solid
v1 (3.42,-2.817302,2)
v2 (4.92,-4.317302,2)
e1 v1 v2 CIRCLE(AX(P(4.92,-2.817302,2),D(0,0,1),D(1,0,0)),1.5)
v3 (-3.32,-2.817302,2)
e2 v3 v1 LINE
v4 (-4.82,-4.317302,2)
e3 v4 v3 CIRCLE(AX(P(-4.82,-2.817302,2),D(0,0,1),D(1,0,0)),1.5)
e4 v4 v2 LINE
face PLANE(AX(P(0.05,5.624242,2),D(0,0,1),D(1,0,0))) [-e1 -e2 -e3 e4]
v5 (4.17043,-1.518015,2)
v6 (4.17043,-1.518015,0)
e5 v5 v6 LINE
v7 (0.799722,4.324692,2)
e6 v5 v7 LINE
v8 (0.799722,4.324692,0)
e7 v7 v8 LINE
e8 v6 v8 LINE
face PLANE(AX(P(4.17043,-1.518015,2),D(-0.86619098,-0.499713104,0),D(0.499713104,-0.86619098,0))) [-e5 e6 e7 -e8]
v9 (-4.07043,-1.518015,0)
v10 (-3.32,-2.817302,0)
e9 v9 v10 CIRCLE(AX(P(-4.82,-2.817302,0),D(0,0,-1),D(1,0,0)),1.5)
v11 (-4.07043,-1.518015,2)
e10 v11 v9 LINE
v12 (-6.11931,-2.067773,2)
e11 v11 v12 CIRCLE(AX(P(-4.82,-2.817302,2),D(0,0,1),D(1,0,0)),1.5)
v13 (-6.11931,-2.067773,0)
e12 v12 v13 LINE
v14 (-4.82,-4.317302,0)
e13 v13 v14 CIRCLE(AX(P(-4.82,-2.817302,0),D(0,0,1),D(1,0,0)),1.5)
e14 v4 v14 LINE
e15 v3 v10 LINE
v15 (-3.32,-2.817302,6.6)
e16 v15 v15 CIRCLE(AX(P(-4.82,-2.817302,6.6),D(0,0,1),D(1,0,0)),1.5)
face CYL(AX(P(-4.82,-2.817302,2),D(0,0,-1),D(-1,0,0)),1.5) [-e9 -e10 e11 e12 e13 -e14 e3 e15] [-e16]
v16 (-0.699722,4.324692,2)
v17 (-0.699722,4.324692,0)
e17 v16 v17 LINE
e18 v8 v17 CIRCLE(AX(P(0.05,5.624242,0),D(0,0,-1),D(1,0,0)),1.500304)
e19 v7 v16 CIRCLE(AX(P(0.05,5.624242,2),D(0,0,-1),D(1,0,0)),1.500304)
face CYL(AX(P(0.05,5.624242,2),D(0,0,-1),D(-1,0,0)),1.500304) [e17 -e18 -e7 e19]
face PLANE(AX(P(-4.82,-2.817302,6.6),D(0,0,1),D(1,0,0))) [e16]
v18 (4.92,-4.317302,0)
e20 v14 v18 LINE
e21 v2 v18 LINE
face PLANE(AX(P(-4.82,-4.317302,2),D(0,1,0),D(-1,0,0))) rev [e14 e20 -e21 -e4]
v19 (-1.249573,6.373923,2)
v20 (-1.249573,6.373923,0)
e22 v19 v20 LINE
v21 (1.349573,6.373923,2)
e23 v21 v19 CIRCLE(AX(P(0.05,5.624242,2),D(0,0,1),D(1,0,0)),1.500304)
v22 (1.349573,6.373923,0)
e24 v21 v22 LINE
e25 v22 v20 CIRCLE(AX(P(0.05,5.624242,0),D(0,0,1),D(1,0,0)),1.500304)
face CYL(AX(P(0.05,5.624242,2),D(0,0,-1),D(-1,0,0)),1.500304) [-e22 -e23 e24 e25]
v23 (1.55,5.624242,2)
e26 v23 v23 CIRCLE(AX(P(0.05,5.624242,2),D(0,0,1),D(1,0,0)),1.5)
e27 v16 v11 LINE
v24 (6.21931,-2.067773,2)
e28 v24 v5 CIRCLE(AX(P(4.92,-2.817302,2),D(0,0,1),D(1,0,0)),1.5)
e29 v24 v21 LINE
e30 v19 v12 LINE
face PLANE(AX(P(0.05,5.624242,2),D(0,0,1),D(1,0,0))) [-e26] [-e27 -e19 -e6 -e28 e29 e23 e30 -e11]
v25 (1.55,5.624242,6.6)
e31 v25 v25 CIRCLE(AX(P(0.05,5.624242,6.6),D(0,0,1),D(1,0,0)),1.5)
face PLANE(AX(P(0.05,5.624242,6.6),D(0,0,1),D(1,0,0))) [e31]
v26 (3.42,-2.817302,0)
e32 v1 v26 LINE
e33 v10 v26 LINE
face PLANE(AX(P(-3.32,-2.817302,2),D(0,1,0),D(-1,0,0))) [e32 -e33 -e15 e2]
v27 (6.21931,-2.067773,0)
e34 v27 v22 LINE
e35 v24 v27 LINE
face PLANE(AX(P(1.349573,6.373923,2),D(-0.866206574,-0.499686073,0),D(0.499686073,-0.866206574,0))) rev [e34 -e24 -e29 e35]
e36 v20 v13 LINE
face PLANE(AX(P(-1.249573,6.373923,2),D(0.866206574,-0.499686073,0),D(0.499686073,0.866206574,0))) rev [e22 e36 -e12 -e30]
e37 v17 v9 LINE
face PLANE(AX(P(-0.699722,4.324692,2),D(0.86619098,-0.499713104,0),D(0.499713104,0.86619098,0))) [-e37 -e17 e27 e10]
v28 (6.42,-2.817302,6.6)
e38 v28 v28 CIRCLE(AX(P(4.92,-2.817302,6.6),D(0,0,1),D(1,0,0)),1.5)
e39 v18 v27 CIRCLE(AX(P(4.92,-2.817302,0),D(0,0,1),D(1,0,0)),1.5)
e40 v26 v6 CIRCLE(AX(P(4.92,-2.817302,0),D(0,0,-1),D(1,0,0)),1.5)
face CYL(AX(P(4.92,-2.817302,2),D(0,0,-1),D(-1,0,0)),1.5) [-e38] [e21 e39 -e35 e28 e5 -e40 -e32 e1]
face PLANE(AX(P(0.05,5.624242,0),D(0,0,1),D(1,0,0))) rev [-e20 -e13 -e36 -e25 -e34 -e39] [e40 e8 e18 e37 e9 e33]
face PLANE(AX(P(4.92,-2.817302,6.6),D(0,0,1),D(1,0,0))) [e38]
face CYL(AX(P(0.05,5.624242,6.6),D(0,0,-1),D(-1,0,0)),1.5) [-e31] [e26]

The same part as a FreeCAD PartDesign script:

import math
import FreeCAD as App
import Part
import Sketcher

V = App.Vector

doc = App.newDocument("Part")
body = doc.addObject("PartDesign::Body", "Body")

# Sketch on XY plane
sketch1 = body.newObject("Sketcher::SketchObject", "Sketch")
sketch1.AttachmentSupport = (doc.getObject("XY_Plane"), [""])
sketch1.MapMode = "FlatFace"
sketch1.addGeometry([
    Part.LineSegment(V(-1.2, 6.4, 0), V(-6.1, -2.1, 0)),  # 0
    Part.ArcOfCircle(Part.Circle(V(-4.8, -2.8, 0), V(0, 0, 1), 1.5), math.radians(150), math.radians(270)),  # 1
    Part.LineSegment(V(-4.8, -4.3, 0), V(4.9, -4.3, 0)),  # 2
    Part.ArcOfCircle(Part.Circle(V(4.9, -2.8, 0), V(0, 0, 1), 1.5), math.radians(-90), math.radians(30)),  # 3
    Part.LineSegment(V(6.2, -2.1, 0), V(1.3, 6.4, 0)),  # 4
    Part.ArcOfCircle(Part.Circle(V(0.1, 5.6, 0), V(0, 0, 1), 1.5), math.radians(30), math.radians(150)),  # 5
    Part.LineSegment(V(-4.1, -1.5, 0), V(-0.7, 4.3, 0)),  # 6
    Part.ArcOfCircle(Part.Circle(V(0.1, 5.6, 0), V(0, 0, 1), 1.5), math.radians(-120), math.radians(-60)),  # 7
    Part.LineSegment(V(0.8, 4.3, 0), V(4.2, -1.5, 0)),  # 8
    Part.ArcOfCircle(Part.Circle(V(4.9, -2.8, 0), V(0, 0, 1), 1.5), math.radians(120), math.radians(180)),  # 9
    Part.LineSegment(V(3.4, -2.8, 0), V(-3.3, -2.8, 0)),  # 10
    Part.ArcOfCircle(Part.Circle(V(-4.8, -2.8, 0), V(0, 0, 1), 1.5), math.radians(0), math.radians(60)),  # 11
], False)
sketch1.addConstraint([
    Sketcher.Constraint("Tangent", 0, 2, 1, 1),
    Sketcher.Constraint("Tangent", 1, 2, 2, 1),
    Sketcher.Constraint("Tangent", 2, 2, 3, 1),
    Sketcher.Constraint("Tangent", 3, 2, 4, 1),
    Sketcher.Constraint("Tangent", 4, 2, 5, 1),
    Sketcher.Constraint("Tangent", 5, 2, 0, 1),
    Sketcher.Constraint("Coincident", 6, 2, 7, 1),
    Sketcher.Constraint("Coincident", 7, 2, 8, 1),
    Sketcher.Constraint("Coincident", 8, 2, 9, 1),
    Sketcher.Constraint("Coincident", 9, 2, 10, 1),
    Sketcher.Constraint("Coincident", 10, 2, 11, 1),
    Sketcher.Constraint("Coincident", 11, 2, 6, 1),
    Sketcher.Constraint("Horizontal", 2),
    Sketcher.Constraint("Horizontal", 10),
    Sketcher.Constraint("Coincident", 7, 3, 5, 3),
    Sketcher.Constraint("Coincident", 9, 3, 3, 3),
    Sketcher.Constraint("Coincident", 11, 3, 1, 3),
    Sketcher.Constraint("Equal", 1, 3),
    Sketcher.Constraint("Equal", 5, 7),
    Sketcher.Constraint("Equal", 3, 9),
    Sketcher.Constraint("Equal", 9, 11),
    Sketcher.Constraint("Horizontal", 0, 2, 3, 2),
    Sketcher.Constraint("Horizontal", 6, 2, 7, 2),
    Sketcher.Constraint("Horizontal", 11, 3, 9, 2),
    Sketcher.Constraint("Horizontal", 8, 2, 11, 2),
    Sketcher.Constraint("Radius", 1, 1.5),
    Sketcher.Constraint("DistanceX", 2, 1, 2, 2, 9.74),
    Sketcher.Constraint("DistanceX", 1, 3, -1, 1, 4.82),
    Sketcher.Constraint("Radius", 5, 1.500304),
    Sketcher.Constraint("DistanceY", 1, 3, -1, 1, 2.817302),
    Sketcher.Constraint("Distance", 0, 9.745592),
    Sketcher.Constraint("DistanceX", 6, 2, -1, 1, 0.699722),
    Sketcher.Constraint("DistanceX", -1, 1, 8, 2, 4.17043),
])
pad1 = body.newObject("PartDesign::Pad", "Pad")
pad1.Profile = sketch1
pad1.Length = 2

# Sketch on XY plane
sketch2 = body.newObject("Sketcher::SketchObject", "Sketch001")
sketch2.AttachmentSupport = (doc.getObject("XY_Plane"), [""])
sketch2.MapMode = "FlatFace"
sketch2.AttachmentOffset = App.Placement(V(0, 0, 2), App.Rotation())
sketch2.addGeometry([
    Part.Circle(V(0.1, 5.6, 0), V(0, 0, 1), 1.5),
    Part.Circle(V(4.9, -2.8, 0), V(0, 0, 1), 1.5),
    Part.Circle(V(-4.8, -2.8, 0), V(0, 0, 1), 1.5),
], False)
sketch2.addConstraint([
    Sketcher.Constraint("Equal", 0, 1),
    Sketcher.Constraint("Equal", 1, 2),
    Sketcher.Constraint("Horizontal", 1, 3, 2, 3),
    Sketcher.Constraint("Diameter", 0, 3.0),
    Sketcher.Constraint("DistanceX", -1, 1, 0, 3, 0.05),
    Sketcher.Constraint("DistanceX", -1, 1, 1, 3, 4.92),
    Sketcher.Constraint("DistanceX", 2, 3, -1, 1, 4.82),
    Sketcher.Constraint("DistanceY", 1, 3, -1, 1, 2.817302),
    Sketcher.Constraint("DistanceY", -1, 1, 0, 3, 5.624242),
])
pad2 = body.newObject("PartDesign::Pad", "Pad001")
pad2.Profile = sketch2
pad2.Length = 4.6

doc.recompute()
